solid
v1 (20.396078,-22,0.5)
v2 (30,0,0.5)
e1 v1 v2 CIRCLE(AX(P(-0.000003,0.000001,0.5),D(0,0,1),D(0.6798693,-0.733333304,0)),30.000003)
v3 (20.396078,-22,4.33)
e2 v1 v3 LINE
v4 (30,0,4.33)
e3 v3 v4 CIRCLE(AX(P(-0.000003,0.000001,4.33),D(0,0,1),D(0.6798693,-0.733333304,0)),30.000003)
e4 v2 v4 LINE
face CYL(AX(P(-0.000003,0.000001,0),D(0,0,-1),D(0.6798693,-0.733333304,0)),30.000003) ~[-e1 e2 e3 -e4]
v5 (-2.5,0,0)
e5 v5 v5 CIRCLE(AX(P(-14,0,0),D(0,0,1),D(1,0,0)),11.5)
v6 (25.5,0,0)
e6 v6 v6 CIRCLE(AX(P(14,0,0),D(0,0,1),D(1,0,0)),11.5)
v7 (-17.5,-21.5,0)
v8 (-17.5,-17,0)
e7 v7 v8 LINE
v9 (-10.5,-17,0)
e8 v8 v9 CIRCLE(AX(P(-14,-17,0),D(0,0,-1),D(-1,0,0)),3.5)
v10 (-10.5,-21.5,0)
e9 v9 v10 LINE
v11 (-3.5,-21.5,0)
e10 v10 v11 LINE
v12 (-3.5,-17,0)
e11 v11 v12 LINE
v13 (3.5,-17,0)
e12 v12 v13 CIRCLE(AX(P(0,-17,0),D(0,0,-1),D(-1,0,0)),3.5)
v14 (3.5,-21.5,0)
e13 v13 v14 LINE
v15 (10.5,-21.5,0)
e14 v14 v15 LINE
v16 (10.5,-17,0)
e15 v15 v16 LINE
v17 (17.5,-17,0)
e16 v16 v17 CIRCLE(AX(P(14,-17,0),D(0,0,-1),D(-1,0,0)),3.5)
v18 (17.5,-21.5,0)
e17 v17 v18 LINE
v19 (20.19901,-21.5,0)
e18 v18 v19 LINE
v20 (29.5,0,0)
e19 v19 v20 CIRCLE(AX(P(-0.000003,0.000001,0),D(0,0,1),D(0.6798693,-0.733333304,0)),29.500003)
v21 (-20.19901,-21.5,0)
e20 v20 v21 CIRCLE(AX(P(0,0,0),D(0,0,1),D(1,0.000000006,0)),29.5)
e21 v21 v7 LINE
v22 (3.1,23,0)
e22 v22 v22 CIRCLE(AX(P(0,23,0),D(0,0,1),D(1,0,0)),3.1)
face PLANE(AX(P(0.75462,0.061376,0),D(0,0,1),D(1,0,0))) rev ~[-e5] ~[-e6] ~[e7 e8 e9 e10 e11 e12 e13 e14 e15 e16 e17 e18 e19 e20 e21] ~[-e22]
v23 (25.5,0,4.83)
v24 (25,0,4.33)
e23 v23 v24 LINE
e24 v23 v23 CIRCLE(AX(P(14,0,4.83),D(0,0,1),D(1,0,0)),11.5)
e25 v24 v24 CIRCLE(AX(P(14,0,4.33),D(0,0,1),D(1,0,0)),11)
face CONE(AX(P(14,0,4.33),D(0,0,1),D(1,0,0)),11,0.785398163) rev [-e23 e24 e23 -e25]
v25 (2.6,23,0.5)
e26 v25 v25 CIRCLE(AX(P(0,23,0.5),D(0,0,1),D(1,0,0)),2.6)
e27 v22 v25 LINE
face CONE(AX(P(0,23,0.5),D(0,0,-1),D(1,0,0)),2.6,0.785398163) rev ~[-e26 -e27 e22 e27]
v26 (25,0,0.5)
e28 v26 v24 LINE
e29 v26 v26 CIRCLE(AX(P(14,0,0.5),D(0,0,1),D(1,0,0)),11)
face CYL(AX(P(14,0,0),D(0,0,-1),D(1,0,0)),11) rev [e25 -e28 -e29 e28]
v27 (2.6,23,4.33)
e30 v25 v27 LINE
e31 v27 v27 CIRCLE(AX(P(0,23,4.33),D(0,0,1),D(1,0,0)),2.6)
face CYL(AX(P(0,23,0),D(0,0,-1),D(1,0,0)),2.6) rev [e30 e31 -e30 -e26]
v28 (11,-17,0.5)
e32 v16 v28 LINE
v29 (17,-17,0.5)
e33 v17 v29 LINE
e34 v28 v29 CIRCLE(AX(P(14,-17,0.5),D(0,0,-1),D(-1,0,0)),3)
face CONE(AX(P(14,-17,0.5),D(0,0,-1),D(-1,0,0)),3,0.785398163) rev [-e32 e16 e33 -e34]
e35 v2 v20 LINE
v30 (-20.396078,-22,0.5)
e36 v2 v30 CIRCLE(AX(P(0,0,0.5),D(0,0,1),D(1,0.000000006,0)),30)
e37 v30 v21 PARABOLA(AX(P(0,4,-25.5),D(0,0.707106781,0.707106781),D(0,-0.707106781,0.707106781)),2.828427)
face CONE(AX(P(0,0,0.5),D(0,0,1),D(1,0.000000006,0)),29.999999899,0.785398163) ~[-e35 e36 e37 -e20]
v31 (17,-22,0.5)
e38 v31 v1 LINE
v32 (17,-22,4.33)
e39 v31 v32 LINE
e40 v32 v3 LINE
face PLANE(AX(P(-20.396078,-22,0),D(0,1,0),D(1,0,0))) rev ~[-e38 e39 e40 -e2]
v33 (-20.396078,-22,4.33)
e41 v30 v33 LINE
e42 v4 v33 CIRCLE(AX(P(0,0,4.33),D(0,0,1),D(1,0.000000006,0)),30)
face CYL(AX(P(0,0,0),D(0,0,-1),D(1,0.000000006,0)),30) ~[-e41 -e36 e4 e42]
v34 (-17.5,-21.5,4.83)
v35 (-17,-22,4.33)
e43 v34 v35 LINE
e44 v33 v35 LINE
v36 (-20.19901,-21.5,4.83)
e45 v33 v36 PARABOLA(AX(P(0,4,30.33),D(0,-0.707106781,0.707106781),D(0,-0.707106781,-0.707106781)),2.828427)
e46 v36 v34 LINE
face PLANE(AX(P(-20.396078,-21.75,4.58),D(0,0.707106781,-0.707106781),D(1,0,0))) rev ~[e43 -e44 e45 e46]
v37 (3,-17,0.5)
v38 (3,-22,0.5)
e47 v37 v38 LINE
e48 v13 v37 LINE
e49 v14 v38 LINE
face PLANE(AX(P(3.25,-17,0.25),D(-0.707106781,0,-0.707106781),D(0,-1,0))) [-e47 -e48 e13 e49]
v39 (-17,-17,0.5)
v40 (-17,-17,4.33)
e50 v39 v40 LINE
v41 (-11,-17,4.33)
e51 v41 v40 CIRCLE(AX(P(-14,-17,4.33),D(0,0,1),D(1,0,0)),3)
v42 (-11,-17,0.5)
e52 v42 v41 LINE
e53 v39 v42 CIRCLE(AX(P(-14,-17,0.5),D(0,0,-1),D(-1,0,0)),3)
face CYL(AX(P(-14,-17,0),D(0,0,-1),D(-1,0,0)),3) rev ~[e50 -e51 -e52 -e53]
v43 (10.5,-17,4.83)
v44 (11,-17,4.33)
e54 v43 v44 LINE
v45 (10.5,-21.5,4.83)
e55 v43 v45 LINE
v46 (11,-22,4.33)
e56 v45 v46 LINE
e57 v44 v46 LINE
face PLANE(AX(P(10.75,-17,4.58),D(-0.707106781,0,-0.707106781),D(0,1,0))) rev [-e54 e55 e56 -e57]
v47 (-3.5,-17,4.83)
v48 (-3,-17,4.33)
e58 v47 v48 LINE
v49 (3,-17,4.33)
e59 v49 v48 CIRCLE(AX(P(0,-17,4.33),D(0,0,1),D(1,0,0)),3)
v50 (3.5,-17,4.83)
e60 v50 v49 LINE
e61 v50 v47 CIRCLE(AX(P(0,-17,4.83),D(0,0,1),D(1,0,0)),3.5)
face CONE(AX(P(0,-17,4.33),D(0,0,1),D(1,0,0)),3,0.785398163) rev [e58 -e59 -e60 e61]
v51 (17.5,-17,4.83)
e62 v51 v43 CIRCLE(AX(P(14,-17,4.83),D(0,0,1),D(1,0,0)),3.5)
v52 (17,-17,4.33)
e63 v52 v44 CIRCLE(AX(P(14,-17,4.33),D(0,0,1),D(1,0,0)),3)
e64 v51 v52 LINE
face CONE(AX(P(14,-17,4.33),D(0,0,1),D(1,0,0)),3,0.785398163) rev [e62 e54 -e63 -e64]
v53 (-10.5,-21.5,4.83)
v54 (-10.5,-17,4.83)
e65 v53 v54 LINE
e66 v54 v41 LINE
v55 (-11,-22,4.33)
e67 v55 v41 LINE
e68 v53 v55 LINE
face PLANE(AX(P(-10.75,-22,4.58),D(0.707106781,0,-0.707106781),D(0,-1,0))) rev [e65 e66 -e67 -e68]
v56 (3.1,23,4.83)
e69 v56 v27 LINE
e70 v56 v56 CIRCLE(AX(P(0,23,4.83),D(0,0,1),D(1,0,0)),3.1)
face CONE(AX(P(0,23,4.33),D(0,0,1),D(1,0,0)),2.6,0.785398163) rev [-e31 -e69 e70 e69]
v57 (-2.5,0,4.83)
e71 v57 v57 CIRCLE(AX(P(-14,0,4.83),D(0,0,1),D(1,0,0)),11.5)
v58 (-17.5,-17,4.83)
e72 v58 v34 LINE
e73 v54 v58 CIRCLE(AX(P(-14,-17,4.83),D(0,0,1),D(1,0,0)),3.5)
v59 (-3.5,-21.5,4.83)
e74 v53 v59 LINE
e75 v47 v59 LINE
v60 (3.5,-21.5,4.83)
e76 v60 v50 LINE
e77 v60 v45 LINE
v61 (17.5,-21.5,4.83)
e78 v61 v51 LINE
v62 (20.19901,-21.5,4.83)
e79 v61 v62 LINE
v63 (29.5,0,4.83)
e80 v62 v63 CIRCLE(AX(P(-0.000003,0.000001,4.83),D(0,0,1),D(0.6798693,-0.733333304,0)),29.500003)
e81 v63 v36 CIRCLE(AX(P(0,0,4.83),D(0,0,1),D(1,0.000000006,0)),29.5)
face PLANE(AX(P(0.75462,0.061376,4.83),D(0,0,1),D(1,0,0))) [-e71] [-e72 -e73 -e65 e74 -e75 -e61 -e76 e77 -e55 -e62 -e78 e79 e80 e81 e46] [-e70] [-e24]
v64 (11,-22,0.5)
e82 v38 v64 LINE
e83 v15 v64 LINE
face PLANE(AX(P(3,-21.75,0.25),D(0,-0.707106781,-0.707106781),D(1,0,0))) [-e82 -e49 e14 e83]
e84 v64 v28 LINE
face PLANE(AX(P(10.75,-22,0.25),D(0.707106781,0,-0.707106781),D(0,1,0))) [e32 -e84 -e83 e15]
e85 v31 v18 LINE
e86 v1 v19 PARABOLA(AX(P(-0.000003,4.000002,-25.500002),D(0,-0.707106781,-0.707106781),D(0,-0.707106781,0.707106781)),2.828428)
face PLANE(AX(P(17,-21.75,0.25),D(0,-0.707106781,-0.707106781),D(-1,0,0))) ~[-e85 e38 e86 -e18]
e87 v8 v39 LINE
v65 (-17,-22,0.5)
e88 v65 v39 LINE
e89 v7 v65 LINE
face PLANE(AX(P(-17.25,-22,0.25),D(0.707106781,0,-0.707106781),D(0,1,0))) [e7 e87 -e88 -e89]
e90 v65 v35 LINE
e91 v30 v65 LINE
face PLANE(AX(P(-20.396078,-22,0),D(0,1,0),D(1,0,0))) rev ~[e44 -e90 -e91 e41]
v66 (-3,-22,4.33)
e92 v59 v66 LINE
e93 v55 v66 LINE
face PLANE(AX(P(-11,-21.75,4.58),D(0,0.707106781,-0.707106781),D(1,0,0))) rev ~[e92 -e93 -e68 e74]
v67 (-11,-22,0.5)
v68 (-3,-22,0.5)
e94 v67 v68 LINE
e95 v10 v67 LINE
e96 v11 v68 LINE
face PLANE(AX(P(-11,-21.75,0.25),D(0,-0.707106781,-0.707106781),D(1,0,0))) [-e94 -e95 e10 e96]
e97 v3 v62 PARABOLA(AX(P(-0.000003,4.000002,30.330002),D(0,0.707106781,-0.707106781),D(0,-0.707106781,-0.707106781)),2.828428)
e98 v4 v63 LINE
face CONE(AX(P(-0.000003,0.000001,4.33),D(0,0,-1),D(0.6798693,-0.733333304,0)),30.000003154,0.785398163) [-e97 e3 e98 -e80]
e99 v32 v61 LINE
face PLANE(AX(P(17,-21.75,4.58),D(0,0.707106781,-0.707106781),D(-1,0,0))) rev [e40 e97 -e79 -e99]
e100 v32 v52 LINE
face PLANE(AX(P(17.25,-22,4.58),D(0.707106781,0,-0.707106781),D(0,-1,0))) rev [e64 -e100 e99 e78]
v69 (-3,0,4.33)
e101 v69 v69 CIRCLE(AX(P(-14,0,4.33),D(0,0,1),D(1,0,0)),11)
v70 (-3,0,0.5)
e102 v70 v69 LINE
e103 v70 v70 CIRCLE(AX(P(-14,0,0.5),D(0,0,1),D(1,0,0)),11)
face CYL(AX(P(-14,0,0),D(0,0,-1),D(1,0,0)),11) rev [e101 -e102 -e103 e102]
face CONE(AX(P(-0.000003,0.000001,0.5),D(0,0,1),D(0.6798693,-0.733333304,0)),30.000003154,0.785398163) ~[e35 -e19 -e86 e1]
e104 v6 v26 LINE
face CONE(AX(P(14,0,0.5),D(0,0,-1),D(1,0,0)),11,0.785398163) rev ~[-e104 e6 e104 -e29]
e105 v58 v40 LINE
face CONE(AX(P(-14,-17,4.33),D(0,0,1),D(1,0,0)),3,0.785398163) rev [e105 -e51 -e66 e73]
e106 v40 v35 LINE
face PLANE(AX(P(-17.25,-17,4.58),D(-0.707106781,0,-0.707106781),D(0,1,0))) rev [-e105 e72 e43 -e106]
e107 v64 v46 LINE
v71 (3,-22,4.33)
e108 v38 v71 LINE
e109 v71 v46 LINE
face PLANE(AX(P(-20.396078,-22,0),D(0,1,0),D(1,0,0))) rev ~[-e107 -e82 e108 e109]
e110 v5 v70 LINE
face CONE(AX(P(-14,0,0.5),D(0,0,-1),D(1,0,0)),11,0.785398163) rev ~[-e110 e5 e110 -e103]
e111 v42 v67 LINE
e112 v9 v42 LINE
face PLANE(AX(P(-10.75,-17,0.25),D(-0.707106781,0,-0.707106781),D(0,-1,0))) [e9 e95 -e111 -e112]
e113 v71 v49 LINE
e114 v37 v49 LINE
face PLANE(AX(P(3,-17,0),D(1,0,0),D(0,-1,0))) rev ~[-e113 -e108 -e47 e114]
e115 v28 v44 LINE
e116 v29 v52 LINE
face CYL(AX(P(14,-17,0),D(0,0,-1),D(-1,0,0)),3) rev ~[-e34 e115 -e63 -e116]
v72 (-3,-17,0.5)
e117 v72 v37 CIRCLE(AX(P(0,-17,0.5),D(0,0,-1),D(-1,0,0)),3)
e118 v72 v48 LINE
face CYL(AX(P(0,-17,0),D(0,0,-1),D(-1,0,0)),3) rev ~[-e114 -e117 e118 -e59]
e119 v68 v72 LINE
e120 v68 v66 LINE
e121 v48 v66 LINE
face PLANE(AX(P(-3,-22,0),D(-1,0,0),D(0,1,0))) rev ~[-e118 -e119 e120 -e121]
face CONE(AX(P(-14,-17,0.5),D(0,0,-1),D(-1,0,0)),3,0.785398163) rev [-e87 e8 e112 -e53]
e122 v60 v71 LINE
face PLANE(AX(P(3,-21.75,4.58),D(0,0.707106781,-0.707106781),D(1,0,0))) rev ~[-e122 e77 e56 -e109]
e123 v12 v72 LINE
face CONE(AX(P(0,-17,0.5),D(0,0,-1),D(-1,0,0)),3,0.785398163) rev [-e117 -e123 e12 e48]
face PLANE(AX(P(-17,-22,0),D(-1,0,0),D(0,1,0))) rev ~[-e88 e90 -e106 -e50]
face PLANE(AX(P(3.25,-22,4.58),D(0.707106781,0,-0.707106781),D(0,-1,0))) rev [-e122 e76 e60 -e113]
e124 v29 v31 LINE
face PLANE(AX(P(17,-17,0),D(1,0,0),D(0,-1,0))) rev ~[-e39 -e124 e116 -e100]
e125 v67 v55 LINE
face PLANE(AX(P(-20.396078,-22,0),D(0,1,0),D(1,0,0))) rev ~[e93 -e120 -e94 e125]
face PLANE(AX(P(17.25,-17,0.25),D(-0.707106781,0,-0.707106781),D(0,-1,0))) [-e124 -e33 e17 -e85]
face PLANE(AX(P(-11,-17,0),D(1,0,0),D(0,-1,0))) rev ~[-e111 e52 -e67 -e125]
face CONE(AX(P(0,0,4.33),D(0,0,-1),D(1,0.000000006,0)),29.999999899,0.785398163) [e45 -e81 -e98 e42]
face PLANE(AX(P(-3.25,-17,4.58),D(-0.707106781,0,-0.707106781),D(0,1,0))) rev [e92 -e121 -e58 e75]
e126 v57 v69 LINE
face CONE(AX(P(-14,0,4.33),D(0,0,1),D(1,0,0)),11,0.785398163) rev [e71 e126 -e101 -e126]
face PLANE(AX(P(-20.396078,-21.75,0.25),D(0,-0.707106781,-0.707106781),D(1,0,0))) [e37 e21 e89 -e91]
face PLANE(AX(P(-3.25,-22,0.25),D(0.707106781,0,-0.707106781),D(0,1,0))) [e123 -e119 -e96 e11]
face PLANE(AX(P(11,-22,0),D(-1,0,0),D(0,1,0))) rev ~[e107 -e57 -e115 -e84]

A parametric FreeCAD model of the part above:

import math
import FreeCAD as App
import Part
import Sketcher
from FreeCAD import Vector


def edges_at(feature, points):
    """Names of the edges that pass closest to the given points."""
    edges = feature.Shape.Edges
    near = lambda p: min(range(len(edges)), key=lambda i: edges[i].distToShape(Part.Vertex(*p))[0])
    return sorted({f"Edge{near(p) + 1}" for p in points})

doc = App.newDocument("Part")
body = doc.addObject("PartDesign::Body", "Body")

# Sketch on XY plane
sketch1 = doc.addObject("Sketcher::SketchObject", "Sketch")
body.addObject(sketch1)
sketch1.AttachmentSupport = (doc.XY_Plane, [""])
sketch1.MapMode = "FlatFace"
sketch1.addGeometry([
    Part.ArcOfCircle(Part.Circle(Vector(-0.000003, 0.000001, 0), Vector(0, 0, 1), 30.000003), math.radians(-47.166569), math.radians(-0.000003)),  # 0
    Part.ArcOfCircle(Part.Circle(Vector(0, 0, 0), Vector(0, 0, 1), 30), math.radians(0), math.radians(227.166572)),  # 1
    Part.LineSegment(Vector(-20.396078, -22, 0), Vector(20.396078, -22, 0)),  # 2
    Part.Circle(Vector(-14, 0, 0), Vector(0, 0, 1), 11),  # 3
    Part.Circle(Vector(14, 0, 0), Vector(0, 0, 1), 11),  # 4
    Part.Circle(Vector(0, 23, 0), Vector(0, 0, 1), 2.6),  # 5
], False)
sketch1.addConstraint([
    Sketcher.Constraint("Tangent", 0, 2, 1, 1),
    Sketcher.Constraint("Coincident", 1, 2, 2, 1),
    Sketcher.Constraint("Coincident", 2, 2, 0, 1),
    Sketcher.Constraint("Horizontal", 2),
    Sketcher.Constraint("Coincident", 0, 3, -1, 1),
    Sketcher.Constraint("Equal", 3, 4),
    Sketcher.Constraint("Symmetric", 3, 3, 4, 3, -1, 1),
    Sketcher.Constraint("PointOnObject", 3, 3, -1),
    Sketcher.Constraint("PointOnObject", 5, 3, -2),
    Sketcher.Constraint("PointOnObject", 0, 2, -1),
    Sketcher.Constraint("Vertical", 1, 3, 5, 3),
    Sketcher.Constraint("Diameter", 3, 22.0),
    Sketcher.Constraint("Radius", 1, 30.0),
    Sketcher.Constraint("Diameter", 5, 5.2),
    Sketcher.Constraint("DistanceX", 3, 3, -1, 1, 14.0),
    Sketcher.Constraint("DistanceY", -1, 1, 5, 3, 23.0),
    Sketcher.Constraint("DistanceY", 1, 2, -1, 1, 22.0),
])
pad1 = doc.addObject("PartDesign::Pad", "Pad")
body.addObject(pad1)
pad1.Profile = sketch1
pad1.Length = 4.83

# Sketch on XY plane
sketch2 = doc.addObject("Sketcher::SketchObject", "Sketch001")
body.addObject(sketch2)
sketch2.AttachmentSupport = (doc.XY_Plane, [""])
sketch2.MapMode = "FlatFace"
sketch2.addGeometry([
    Part.ArcOfCircle(Part.Circle(Vector(0, -22, 0), Vector(0, 0, 1), 3), math.radians(180), math.radians(360)),  # 0
    Part.LineSegment(Vector(-3, -22, 0), Vector(-3, -17, 0)),  # 1
    Part.ArcOfCircle(Part.Circle(Vector(0, -17, 0), Vector(0, 0, 1), 3), math.radians(0), math.radians(180)),  # 2
    Part.LineSegment(Vector(3, -17, 0), Vector(3, -22, 0)),  # 3
    Part.ArcOfCircle(Part.Circle(Vector(14, -22, 0), Vector(0, 0, 1), 3), math.radians(180), math.radians(360)),  # 4
    Part.LineSegment(Vector(11, -22, 0), Vector(11, -17, 0)),  # 5
    Part.ArcOfCircle(Part.Circle(Vector(14, -17, 0), Vector(0, 0, 1), 3), math.radians(0), math.radians(180)),  # 6
    Part.LineSegment(Vector(17, -17, 0), Vector(17, -22, 0)),  # 7
    Part.ArcOfCircle(Part.Circle(Vector(-14, -22, 0), Vector(0, 0, 1), 3), math.radians(180), math.radians(360)),  # 8
    Part.LineSegment(Vector(-17, -22, 0), Vector(-17, -17, 0)),  # 9
    Part.ArcOfCircle(Part.Circle(Vector(-14, -17, 0), Vector(0, 0, 1), 3), math.radians(0), math.radians(180)),  # 10
    Part.LineSegment(Vector(-11, -17, 0), Vector(-11, -22, 0)),  # 11
], False)
sketch2.addConstraint([
    Sketcher.Constraint("Tangent", 0, 1, 1, 1),
    Sketcher.Constraint("Tangent", 1, 2, 2, 2),
    Sketcher.Constraint("Tangent", 2, 1, 3, 1),
    Sketcher.Constraint("Tangent", 3, 2, 0, 2),
    Sketcher.Constraint("Tangent", 4, 1, 5, 1),
    Sketcher.Constraint("Tangent", 5, 2, 6, 2),
    Sketcher.Constraint("Tangent", 6, 1, 7, 1),
    Sketcher.Constraint("Tangent", 7, 2, 4, 2),
    Sketcher.Constraint("Tangent", 8, 1, 9, 1),
    Sketcher.Constraint("Tangent", 9, 2, 10, 2),
    Sketcher.Constraint("Tangent", 10, 1, 11, 1),
    Sketcher.Constraint("Tangent", 11, 2, 8, 2),
    Sketcher.Constraint("Vertical", 1),
    Sketcher.Constraint("Vertical", 3),
    Sketcher.Constraint("Vertical", 5),
    Sketcher.Constraint("Vertical", 7),
    Sketcher.Constraint("Vertical", 9),
    Sketcher.Constraint("Vertical", 11),
    Sketcher.Constraint("Equal", 2, 4),
    Sketcher.Constraint("Equal", 6, 8),
    Sketcher.Constraint("Symmetric", 4, 3, 8, 3, -2),
    Sketcher.Constraint("PointOnObject", 0, 3, -2),
    Sketcher.Constraint("Horizontal", 0, 3, 4, 3),
    Sketcher.Constraint("Horizontal", 2, 3, 6, 3),
    Sketcher.Constraint("Horizontal", 6, 3, 10, 3),
    Sketcher.Constraint("Radius", 0, 3.0),
    Sketcher.Constraint("DistanceY", 1, 1, 1, 2, 5.0),
    Sketcher.Constraint("DistanceY", 0, 3, -1, 1, 22.0),
    Sketcher.Constraint("DistanceX", -1, 1, 4, 3, 14.0),
])
pocket1 = doc.addObject("PartDesign::Pocket", "Pocket")
body.addObject(pocket1)
pocket1.Profile = sketch2
pocket1.Length = 25
pocket1.Reversed = True
doc.recompute()

chamfer = doc.addObject("PartDesign::Chamfer", "Chamfer")
body.addObject(chamfer)
chamfer.Base = (pocket1, edges_at(pocket1, [
    (-12.002, 27.494, 0),
    (18.698, -22, 0),
    (17, -19.5, 0),
    (14, -14, 0),
    (11, -19.5, 0),
    (7, -22, 0),
    (3, -19.5, 0),
    (0, -14, 0),
    (-3, -19.5, 0),
    (-7, -22, 0),
    (-11, -19.5, 0),
    (-14, -14, 0),
    (-17, -19.5, 0),
    (-18.698, -22, 0),
    (-25, 0, 0),
    (3, 0, 0),
    (-2.6, 23, 0),
    (-12.002, 27.494, 4.83),
    (18.698, -22, 4.83),
    (17, -19.5, 4.83),
    (14, -14, 4.83),
    (11, -19.5, 4.83),
    (7, -22, 4.83),
    (3, -19.5, 4.83),
    (0, -14, 4.83),
    (-3, -19.5, 4.83),
    (-7, -22, 4.83),
    (-11, -19.5, 4.83),
    (-14, -14, 4.83),
    (-17, -19.5, 4.83),
    (-18.698, -22, 4.83),
    (-25, 0, 4.83),
    (3, 0, 4.83),
    (-2.6, 23, 4.83),
]))
chamfer.Size = 0.5

doc.recompute()
